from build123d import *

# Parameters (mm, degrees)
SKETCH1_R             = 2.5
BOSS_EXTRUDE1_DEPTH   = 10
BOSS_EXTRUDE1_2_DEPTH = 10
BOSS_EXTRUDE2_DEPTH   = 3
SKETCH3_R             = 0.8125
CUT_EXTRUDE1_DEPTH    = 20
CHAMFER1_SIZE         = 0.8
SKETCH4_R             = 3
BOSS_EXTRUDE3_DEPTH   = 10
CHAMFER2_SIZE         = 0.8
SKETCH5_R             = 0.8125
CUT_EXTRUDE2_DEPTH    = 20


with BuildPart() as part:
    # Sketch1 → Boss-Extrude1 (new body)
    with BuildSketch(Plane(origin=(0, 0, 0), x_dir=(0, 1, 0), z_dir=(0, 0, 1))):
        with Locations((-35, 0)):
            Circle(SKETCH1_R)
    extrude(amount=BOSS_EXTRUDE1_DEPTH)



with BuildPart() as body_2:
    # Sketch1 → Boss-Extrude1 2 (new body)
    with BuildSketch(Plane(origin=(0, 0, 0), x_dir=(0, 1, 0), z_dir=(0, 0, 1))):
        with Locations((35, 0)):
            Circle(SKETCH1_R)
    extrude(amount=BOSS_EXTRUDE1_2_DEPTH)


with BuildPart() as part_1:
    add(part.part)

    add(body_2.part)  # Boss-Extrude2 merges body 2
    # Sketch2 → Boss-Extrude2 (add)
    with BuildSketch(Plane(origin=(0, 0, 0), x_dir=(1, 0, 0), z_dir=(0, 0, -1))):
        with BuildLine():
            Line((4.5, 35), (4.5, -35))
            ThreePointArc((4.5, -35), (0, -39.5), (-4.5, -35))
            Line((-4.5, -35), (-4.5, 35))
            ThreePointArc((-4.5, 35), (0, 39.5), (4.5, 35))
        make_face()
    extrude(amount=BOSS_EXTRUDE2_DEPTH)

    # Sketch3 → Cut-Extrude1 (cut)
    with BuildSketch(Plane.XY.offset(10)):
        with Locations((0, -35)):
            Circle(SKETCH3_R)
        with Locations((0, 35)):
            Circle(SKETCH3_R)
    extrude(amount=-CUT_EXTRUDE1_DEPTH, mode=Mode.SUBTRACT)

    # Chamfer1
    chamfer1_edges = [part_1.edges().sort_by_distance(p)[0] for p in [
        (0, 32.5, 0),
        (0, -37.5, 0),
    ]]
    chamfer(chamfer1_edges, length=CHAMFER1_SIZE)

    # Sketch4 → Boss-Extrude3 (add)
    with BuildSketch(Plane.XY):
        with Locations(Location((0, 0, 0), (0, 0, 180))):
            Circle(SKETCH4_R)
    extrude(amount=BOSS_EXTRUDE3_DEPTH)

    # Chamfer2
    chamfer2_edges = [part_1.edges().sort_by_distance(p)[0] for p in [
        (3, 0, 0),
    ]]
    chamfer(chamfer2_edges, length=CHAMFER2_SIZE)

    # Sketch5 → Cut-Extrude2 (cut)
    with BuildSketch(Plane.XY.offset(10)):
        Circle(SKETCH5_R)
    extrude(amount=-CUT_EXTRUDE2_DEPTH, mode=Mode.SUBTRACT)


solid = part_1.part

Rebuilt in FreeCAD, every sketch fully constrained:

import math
import FreeCAD as App
import Part
import Sketcher

V = App.Vector


def edges_at(feature, points):
    """Names of the edges that pass closest to the given points."""
    edges = feature.Shape.Edges
    near = lambda p: min(range(len(edges)), key=lambda i: edges[i].distToShape(Part.Vertex(*p))[0])
    return sorted({f"Edge{near(p) + 1}" for p in points})

doc = App.newDocument("Part")
body = doc.addObject("PartDesign::Body", "Body")

# Sketch on XY plane
sketch1 = body.newObject("Sketcher::SketchObject", "Sketch")
sketch1.AttachmentSupport = (doc.getObject("XY_Plane"), [""])
sketch1.MapMode = "FlatFace"
sketch1.addGeometry(Part.Circle(V(0, -35, 0), V(0, 0, 1), 2.5), False)
sketch1.addConstraint([
    Sketcher.Constraint("PointOnObject", 0, 3, -2),
    Sketcher.Constraint("Diameter", 0, 5.0),
    Sketcher.Constraint("DistanceY", 0, 3, -1, 1, 35.0),
])
pad1 = body.newObject("PartDesign::Pad", "Pad")
pad1.Profile = sketch1
pad1.Length = 10
body2 = doc.addObject("PartDesign::Body", "Body001")

# Sketch on XY plane
sketch2 = body2.newObject("Sketcher::SketchObject", "Sketch001")
sketch2.AttachmentSupport = (doc.getObject("XY_Plane001"), [""])
sketch2.MapMode = "FlatFace"
sketch2.addGeometry(Part.Circle(V(0, 35, 0), V(0, 0, 1), 2.5), False)
sketch2.addConstraint([
    Sketcher.Constraint("PointOnObject", 0, 3, -2),
    Sketcher.Constraint("Diameter", 0, 5.0),
    Sketcher.Constraint("DistanceY", -1, 1, 0, 3, 35.0),
])
pad2 = body2.newObject("PartDesign::Pad", "Pad001")
pad2.Profile = sketch2
pad2.Length = 10
body.AllowCompound = True
doc.recompute()

boolean = body.newObject("PartDesign::Boolean", "Boolean")
boolean.Type = "Fuse"
boolean.addObjects([body2])

# Sketch on XY plane
sketch3 = body.newObject("Sketcher::SketchObject", "Sketch002")
sketch3.AttachmentSupport = (doc.getObject("XY_Plane"), [""])
sketch3.MapMode = "FlatFace"
sketch3.addGeometry([
    Part.LineSegment(V(4.5, 35, 0), V(4.5, -35, 0)),
    Part.ArcOfCircle(Part.Circle(V(0, -35, 0), V(0, 0, 1), 4.5), math.radians(180), math.radians(360)),
    Part.LineSegment(V(-4.5, -35, 0), V(-4.5, 35, 0)),
    Part.ArcOfCircle(Part.Circle(V(0, 35, 0), V(0, 0, 1), 4.5), math.radians(0), math.radians(180)),
], False)
sketch3.addConstraint([
    Sketcher.Constraint("Tangent", 0, 2, 1, 2),
    Sketcher.Constraint("Tangent", 1, 1, 2, 1),
    Sketcher.Constraint("Tangent", 2, 2, 3, 2),
    Sketcher.Constraint("Tangent", 3, 1, 0, 1),
    Sketcher.Constraint("Vertical", 0),
    Sketcher.Constraint("Vertical", 2),
    Sketcher.Constraint("Symmetric", 1, 3, 3, 3, -1, 1),
    Sketcher.Constraint("Radius", 1, 4.5),
    Sketcher.Constraint("DistanceY", 0, 2, 0, 1, 70.0),
])
pad3 = body.newObject("PartDesign::Pad", "Pad002")
pad3.Profile = sketch3
pad3.Length = 3
pad3.Reversed = True

# Sketch on XY plane
sketch4 = body.newObject("Sketcher::SketchObject", "Sketch003")
sketch4.AttachmentSupport = (doc.getObject("XY_Plane"), [""])
sketch4.MapMode = "FlatFace"
sketch4.AttachmentOffset = App.Placement(V(0, 0, 10), App.Rotation())
sketch4.addGeometry([
    Part.Circle(V(0, -35, 0), V(0, 0, 1), 0.8),
    Part.Circle(V(0, 35, 0), V(0, 0, 1), 0.8),
], False)
sketch4.addConstraint([
    Sketcher.Constraint("Equal", 0, 1),
    Sketcher.Constraint("Symmetric", 0, 3, 1, 3, -1, 1),
    Sketcher.Constraint("PointOnObject", 0, 3, -2),
    Sketcher.Constraint("Diameter", 0, 1.625),
    Sketcher.Constraint("DistanceY", 0, 3, -1, 1, 35.0),
])
pocket1 = body.newObject("PartDesign::Pocket", "Pocket")
pocket1.Profile = sketch4
pocket1.Length = 20
doc.recompute()

chamfer = body.newObject("PartDesign::Chamfer", "Chamfer")
chamfer.Base = (pocket1, edges_at(pocket1, [(0, 32.5, 0), (0, -37.5, 0)]))
chamfer.Size = 0.8

# Sketch on XY plane
sketch5 = body.newObject("Sketcher::SketchObject", "Sketch004")
sketch5.AttachmentSupport = (doc.getObject("XY_Plane"), [""])
sketch5.MapMode = "FlatFace"
sketch5.addGeometry(Part.Circle(V(0, 0, 0), V(0, 0, 1), 3), False)
sketch5.addConstraint([
    Sketcher.Constraint("Coincident", 0, 3, -1, 1),
    Sketcher.Constraint("Diameter", 0, 6.0),
])
pad4 = body.newObject("PartDesign::Pad", "Pad003")
pad4.Profile = sketch5
pad4.Length = 10
doc.recompute()

chamfer2 = body.newObject("PartDesign::Chamfer", "Chamfer001")
chamfer2.Base = (pad4, edges_at(pad4, [(3, 0, 0)]))
chamfer2.Size = 0.8

# Sketch on XY plane
sketch6 = body.newObject("Sketcher::SketchObject", "Sketch005")
sketch6.AttachmentSupport = (doc.getObject("XY_Plane"), [""])
sketch6.MapMode = "FlatFace"
sketch6.AttachmentOffset = App.Placement(V(0, 0, 10), App.Rotation())
sketch6.addGeometry(Part.Circle(V(0, 0, 0), V(0, 0, 1), 0.8), False)
sketch6.addConstraint([
    Sketcher.Constraint("Coincident", 0, 3, -1, 1),
    Sketcher.Constraint("Diameter", 0, 1.625),
])
pocket2 = body.newObject("PartDesign::Pocket", "Pocket001")
pocket2.Profile = sketch6
pocket2.Length = 20

doc.recompute()
